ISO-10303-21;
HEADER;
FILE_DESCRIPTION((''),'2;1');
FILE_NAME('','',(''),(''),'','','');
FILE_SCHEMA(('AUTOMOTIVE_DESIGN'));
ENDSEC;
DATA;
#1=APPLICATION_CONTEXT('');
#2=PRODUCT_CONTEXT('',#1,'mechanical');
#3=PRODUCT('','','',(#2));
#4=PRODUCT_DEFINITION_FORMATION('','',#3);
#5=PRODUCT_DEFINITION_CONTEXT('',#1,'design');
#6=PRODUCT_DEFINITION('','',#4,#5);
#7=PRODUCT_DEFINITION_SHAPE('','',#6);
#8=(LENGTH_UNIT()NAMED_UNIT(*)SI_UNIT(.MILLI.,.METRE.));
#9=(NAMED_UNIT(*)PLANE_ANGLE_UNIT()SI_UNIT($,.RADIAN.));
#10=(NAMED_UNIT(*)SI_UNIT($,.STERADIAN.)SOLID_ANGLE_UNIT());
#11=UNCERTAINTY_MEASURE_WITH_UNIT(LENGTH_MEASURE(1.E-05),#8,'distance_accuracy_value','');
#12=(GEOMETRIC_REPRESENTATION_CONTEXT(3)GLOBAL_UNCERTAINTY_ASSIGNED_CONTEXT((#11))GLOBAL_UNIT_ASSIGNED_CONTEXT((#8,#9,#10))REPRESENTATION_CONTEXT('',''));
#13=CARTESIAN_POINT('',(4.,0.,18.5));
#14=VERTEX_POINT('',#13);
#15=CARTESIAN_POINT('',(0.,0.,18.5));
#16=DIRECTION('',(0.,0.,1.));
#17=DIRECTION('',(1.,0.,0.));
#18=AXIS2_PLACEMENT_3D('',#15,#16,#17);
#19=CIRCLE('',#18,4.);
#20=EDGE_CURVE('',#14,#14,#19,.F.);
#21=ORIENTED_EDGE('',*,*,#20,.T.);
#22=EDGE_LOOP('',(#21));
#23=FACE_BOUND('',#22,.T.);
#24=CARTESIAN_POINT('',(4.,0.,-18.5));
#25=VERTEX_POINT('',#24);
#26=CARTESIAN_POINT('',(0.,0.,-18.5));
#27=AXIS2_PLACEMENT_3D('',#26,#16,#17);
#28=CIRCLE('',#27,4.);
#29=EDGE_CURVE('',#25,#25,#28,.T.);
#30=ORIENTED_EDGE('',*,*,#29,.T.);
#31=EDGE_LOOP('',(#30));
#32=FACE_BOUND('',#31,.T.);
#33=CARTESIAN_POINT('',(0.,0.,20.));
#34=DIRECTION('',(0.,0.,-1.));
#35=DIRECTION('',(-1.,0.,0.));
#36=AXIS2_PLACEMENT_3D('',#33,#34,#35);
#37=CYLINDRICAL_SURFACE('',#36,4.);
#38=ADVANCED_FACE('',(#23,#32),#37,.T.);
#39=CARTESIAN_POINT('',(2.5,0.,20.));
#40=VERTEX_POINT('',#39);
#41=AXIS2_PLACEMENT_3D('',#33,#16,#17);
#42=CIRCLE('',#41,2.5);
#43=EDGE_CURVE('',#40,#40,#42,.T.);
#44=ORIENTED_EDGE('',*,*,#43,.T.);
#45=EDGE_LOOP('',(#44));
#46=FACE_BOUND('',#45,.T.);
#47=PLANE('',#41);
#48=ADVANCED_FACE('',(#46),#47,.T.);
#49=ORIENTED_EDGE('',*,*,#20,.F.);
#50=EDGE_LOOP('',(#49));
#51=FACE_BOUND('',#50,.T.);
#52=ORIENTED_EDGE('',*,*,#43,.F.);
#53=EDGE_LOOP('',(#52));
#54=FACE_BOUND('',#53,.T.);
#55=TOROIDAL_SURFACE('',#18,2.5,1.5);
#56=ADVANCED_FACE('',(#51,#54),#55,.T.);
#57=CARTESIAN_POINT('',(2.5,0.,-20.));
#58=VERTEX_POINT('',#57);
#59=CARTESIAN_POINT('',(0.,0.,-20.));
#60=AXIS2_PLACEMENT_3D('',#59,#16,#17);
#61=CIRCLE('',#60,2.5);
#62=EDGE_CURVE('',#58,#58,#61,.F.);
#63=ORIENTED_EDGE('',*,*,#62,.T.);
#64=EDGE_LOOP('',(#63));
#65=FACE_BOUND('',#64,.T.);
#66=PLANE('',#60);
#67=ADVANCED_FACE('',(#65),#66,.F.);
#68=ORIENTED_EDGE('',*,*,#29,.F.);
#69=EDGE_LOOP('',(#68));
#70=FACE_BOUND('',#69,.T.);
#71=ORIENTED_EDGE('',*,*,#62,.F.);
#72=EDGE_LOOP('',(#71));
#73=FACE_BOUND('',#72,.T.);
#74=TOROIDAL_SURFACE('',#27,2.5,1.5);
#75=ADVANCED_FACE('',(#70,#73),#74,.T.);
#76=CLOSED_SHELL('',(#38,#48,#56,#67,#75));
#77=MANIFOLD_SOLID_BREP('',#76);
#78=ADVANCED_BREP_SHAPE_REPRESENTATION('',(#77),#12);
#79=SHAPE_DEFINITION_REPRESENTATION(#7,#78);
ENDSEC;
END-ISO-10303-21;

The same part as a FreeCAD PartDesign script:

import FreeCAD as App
import Part
import Sketcher


def edges_at(feature, points):
    """Names of the edges that pass closest to the given points."""
    edges = feature.Shape.Edges
    near = lambda p: min(range(len(edges)), key=lambda i: edges[i].distToShape(Part.Vertex(*p))[0])
    return sorted({f"Edge{near(p) + 1}" for p in points})

doc = App.newDocument("Part")
body = doc.addObject("PartDesign::Body", "Body")

# Sketch on XY plane
sketch1 = body.newObject("Sketcher::SketchObject", "Sketch")
sketch1.AttachmentSupport = (doc.getObject("XY_Plane"), [""])
sketch1.MapMode = "FlatFace"
sketch1.addGeometry(Part.Circle(App.Vector(0, 0, 0), App.Vector(0, 0, 1), 4), False)
sketch1.addConstraint(Sketcher.Constraint("Coincident", 0, 3, -1, 1))
sketch1.addConstraint(Sketcher.Constraint("Diameter", 0, 8.0))
pad1 = body.newObject("PartDesign::Pad", "Pad")
pad1.Profile = sketch1
pad1.Length = 40
pad1.Midplane = True
doc.recompute()

fillet = body.newObject("PartDesign::Fillet", "Fillet")
fillet.Base = (pad1, edges_at(pad1, [(-4, 0, -20), (-4, 0, 20)]))
fillet.Radius = 1.5

doc.recompute()
